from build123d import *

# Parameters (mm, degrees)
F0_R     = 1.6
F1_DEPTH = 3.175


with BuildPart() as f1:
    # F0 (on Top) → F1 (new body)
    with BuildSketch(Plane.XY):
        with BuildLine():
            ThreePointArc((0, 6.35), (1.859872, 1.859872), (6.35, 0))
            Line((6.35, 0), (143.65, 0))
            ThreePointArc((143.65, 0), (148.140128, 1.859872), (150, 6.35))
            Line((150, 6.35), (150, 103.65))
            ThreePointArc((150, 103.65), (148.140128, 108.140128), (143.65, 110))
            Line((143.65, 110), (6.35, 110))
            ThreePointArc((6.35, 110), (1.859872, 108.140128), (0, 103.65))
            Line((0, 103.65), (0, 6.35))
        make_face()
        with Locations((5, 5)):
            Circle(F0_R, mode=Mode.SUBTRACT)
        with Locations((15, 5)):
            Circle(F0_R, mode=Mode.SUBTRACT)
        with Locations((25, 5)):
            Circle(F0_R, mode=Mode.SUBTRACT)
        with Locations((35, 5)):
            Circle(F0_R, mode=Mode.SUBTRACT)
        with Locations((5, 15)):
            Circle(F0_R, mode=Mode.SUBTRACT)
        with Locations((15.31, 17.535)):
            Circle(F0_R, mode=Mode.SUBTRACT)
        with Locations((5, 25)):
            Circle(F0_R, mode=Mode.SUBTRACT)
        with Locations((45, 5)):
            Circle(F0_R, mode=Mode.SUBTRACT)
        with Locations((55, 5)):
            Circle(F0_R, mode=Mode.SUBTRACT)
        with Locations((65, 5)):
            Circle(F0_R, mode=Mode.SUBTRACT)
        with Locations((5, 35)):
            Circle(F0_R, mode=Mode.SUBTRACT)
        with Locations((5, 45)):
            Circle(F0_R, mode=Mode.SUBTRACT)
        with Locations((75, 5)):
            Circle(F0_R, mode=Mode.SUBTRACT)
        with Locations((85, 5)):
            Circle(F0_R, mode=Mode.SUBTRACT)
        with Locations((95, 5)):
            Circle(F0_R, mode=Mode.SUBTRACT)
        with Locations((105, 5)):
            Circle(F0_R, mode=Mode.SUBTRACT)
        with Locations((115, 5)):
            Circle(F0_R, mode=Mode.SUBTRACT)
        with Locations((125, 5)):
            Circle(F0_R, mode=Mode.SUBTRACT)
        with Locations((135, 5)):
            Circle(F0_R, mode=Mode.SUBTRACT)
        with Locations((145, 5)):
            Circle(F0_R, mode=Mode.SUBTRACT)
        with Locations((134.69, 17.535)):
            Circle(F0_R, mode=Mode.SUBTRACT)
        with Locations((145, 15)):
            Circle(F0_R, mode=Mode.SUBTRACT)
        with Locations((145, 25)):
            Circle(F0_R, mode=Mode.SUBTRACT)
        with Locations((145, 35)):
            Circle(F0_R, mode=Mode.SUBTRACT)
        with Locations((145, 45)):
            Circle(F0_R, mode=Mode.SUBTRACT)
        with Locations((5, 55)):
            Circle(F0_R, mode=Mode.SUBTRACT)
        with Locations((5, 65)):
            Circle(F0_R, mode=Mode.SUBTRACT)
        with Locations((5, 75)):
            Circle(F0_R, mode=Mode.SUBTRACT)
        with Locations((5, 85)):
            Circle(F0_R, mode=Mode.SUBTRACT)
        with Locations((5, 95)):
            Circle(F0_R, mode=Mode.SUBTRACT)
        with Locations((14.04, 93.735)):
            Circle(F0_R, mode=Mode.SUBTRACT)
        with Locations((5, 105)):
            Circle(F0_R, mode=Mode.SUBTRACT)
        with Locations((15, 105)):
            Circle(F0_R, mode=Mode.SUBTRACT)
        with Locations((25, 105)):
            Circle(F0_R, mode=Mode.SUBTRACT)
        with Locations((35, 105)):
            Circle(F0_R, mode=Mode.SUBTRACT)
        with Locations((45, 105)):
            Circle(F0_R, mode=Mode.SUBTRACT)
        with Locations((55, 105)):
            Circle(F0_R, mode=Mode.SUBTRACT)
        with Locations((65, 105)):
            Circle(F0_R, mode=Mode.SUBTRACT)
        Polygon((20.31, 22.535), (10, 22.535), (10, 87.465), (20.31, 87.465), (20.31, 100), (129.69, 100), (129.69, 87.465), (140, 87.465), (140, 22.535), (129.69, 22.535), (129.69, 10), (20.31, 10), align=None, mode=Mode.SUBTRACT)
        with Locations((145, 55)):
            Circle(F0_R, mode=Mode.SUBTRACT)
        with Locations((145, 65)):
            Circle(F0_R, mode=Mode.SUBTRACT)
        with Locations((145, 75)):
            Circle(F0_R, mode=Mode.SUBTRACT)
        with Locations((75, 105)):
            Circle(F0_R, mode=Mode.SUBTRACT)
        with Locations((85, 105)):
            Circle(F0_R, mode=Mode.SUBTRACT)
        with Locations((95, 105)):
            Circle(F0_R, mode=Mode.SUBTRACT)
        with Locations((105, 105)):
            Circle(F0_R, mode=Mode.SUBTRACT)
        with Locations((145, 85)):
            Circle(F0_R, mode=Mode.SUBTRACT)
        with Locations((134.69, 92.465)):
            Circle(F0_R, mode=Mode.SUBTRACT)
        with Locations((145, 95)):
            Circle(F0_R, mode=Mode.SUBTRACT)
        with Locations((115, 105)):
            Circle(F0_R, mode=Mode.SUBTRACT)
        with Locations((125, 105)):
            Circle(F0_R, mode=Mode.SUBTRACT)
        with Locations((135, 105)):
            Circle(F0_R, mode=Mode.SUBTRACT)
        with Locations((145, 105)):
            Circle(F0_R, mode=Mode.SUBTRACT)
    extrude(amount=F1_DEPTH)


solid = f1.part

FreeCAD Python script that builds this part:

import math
import FreeCAD as App
import Part
import Sketcher
Q = App.Units.Quantity

doc = App.newDocument("Part")
body = doc.addObject("PartDesign::Body", "Body")

sketch1 = body.newObject("Sketcher::SketchObject", "Sketch")
sketch1.AttachmentSupport = (doc.getObject("XY_Plane"), [""])
sketch1.MapMode = "FlatFace"
sketch1.addGeometry([
    Part.ArcOfCircle(Part.Circle(App.Vector(6.35, 6.35, 0), App.Vector(0, 0, 1), 6.35), math.radians(-179.999998), math.radians(-90.000002)),
    Part.LineSegment(App.Vector(6.35, 0, 0), App.Vector(143.65, 0, 0)),
    Part.ArcOfCircle(Part.Circle(App.Vector(143.65, 6.35, 0), App.Vector(0, 0, 1), 6.35), math.radians(-89.999998), math.radians(-0.000002)),
    Part.LineSegment(App.Vector(150, 6.35, 0), App.Vector(150, 103.65, 0)),
    Part.ArcOfCircle(Part.Circle(App.Vector(143.65, 103.65, 0), App.Vector(0, 0, 1), 6.35), math.radians(0.000002), math.radians(89.999998)),
    Part.LineSegment(App.Vector(143.65, 110, 0), App.Vector(6.35, 110, 0)),
    Part.ArcOfCircle(Part.Circle(App.Vector(6.35, 103.65, 0), App.Vector(0, 0, 1), 6.35), math.radians(90.000002), math.radians(179.999998)),
    Part.LineSegment(App.Vector(0, 103.65, 0), App.Vector(0, 6.35, 0)),
    Part.Circle(App.Vector(5, 5, 0), App.Vector(0, 0, 1), 1.6),
    Part.Circle(App.Vector(15, 5, 0), App.Vector(0, 0, 1), 1.6),
    Part.Circle(App.Vector(5, 15, 0), App.Vector(0, 0, 1), 1.6),
    Part.Circle(App.Vector(25, 5, 0), App.Vector(0, 0, 1), 1.6),
    Part.Circle(App.Vector(35, 5, 0), App.Vector(0, 0, 1), 1.6),
    Part.Circle(App.Vector(15.31, 17.535, 0), App.Vector(0, 0, 1), 1.6),
    Part.Circle(App.Vector(5, 25, 0), App.Vector(0, 0, 1), 1.6),
    Part.Circle(App.Vector(45, 5, 0), App.Vector(0, 0, 1), 1.6),
    Part.Circle(App.Vector(55, 5, 0), App.Vector(0, 0, 1), 1.6),
    Part.Circle(App.Vector(65, 5, 0), App.Vector(0, 0, 1), 1.6),
    Part.Circle(App.Vector(5, 35, 0), App.Vector(0, 0, 1), 1.6),
    Part.Circle(App.Vector(5, 45, 0), App.Vector(0, 0, 1), 1.6),
    Part.Circle(App.Vector(75, 5, 0), App.Vector(0, 0, 1), 1.6),
    Part.Circle(App.Vector(85, 5, 0), App.Vector(0, 0, 1), 1.6),
    Part.Circle(App.Vector(95, 5, 0), App.Vector(0, 0, 1), 1.6),
    Part.Circle(App.Vector(105, 5, 0), App.Vector(0, 0, 1), 1.6),
    Part.Circle(App.Vector(115, 5, 0), App.Vector(0, 0, 1), 1.6),
    Part.Circle(App.Vector(125, 5, 0), App.Vector(0, 0, 1), 1.6),
    Part.Circle(App.Vector(135, 5, 0), App.Vector(0, 0, 1), 1.6),
    Part.Circle(App.Vector(145, 5, 0), App.Vector(0, 0, 1), 1.6),
    Part.Circle(App.Vector(145, 15, 0), App.Vector(0, 0, 1), 1.6),
    Part.Circle(App.Vector(134.69, 17.535, 0), App.Vector(0, 0, 1), 1.6),
    Part.Circle(App.Vector(145, 25, 0), App.Vector(0, 0, 1), 1.6),
    Part.Circle(App.Vector(145, 35, 0), App.Vector(0, 0, 1), 1.6),
    Part.Circle(App.Vector(145, 45, 0), App.Vector(0, 0, 1), 1.6),
    Part.Circle(App.Vector(5, 55, 0), App.Vector(0, 0, 1), 1.6),
    Part.Circle(App.Vector(5, 65, 0), App.Vector(0, 0, 1), 1.6),
    Part.Circle(App.Vector(5, 75, 0), App.Vector(0, 0, 1), 1.6),
    Part.Circle(App.Vector(5, 85, 0), App.Vector(0, 0, 1), 1.6),
    Part.Circle(App.Vector(5, 95, 0), App.Vector(0, 0, 1), 1.6),
    Part.Circle(App.Vector(14.04, 93.735, 0), App.Vector(0, 0, 1), 1.6),
    Part.Circle(App.Vector(5, 105, 0), App.Vector(0, 0, 1), 1.6),
    Part.Circle(App.Vector(15, 105, 0), App.Vector(0, 0, 1), 1.6),
    Part.Circle(App.Vector(25, 105, 0), App.Vector(0, 0, 1), 1.6),
    Part.Circle(App.Vector(35, 105, 0), App.Vector(0, 0, 1), 1.6),
    Part.Circle(App.Vector(45, 105, 0), App.Vector(0, 0, 1), 1.6),
    Part.Circle(App.Vector(55, 105, 0), App.Vector(0, 0, 1), 1.6),
    Part.Circle(App.Vector(65, 105, 0), App.Vector(0, 0, 1), 1.6),
    Part.LineSegment(App.Vector(20.31, 10, 0), App.Vector(20.31, 22.535, 0)),
    Part.LineSegment(App.Vector(20.31, 22.535, 0), App.Vector(10, 22.535, 0)),
    Part.LineSegment(App.Vector(10, 22.535, 0), App.Vector(10, 87.465, 0)),
    Part.LineSegment(App.Vector(10, 87.465, 0), App.Vector(20.31, 87.465, 0)),
    Part.LineSegment(App.Vector(20.31, 87.465, 0), App.Vector(20.31, 100, 0)),
    Part.LineSegment(App.Vector(20.31, 100, 0), App.Vector(129.69, 100, 0)),
    Part.LineSegment(App.Vector(129.69, 100, 0), App.Vector(129.69, 87.465, 0)),
    Part.LineSegment(App.Vector(129.69, 87.465, 0), App.Vector(140, 87.465, 0)),
    Part.LineSegment(App.Vector(140, 87.465, 0), App.Vector(140, 22.535, 0)),
    Part.LineSegment(App.Vector(140, 22.535, 0), App.Vector(129.69, 22.535, 0)),
    Part.LineSegment(App.Vector(129.69, 22.535, 0), App.Vector(129.69, 10, 0)),
    Part.LineSegment(App.Vector(129.69, 10, 0), App.Vector(20.31, 10, 0)),
    Part.Circle(App.Vector(145, 55, 0), App.Vector(0, 0, 1), 1.6),
    Part.Circle(App.Vector(145, 65, 0), App.Vector(0, 0, 1), 1.6),
    Part.Circle(App.Vector(145, 75, 0), App.Vector(0, 0, 1), 1.6),
    Part.Circle(App.Vector(75, 105, 0), App.Vector(0, 0, 1), 1.6),
    Part.Circle(App.Vector(85, 105, 0), App.Vector(0, 0, 1), 1.6),
    Part.Circle(App.Vector(95, 105, 0), App.Vector(0, 0, 1), 1.6),
    Part.Circle(App.Vector(105, 105, 0), App.Vector(0, 0, 1), 1.6),
    Part.Circle(App.Vector(145, 85, 0), App.Vector(0, 0, 1), 1.6),
    Part.Circle(App.Vector(134.69, 92.465, 0), App.Vector(0, 0, 1), 1.6),
    Part.Circle(App.Vector(115, 105, 0), App.Vector(0, 0, 1), 1.6),
    Part.Circle(App.Vector(125, 105, 0), App.Vector(0, 0, 1), 1.6),
    Part.Circle(App.Vector(145, 95, 0), App.Vector(0, 0, 1), 1.6),
    Part.Circle(App.Vector(135, 105, 0), App.Vector(0, 0, 1), 1.6),
    Part.Circle(App.Vector(145, 105, 0), App.Vector(0, 0, 1), 1.6),
], False)
sketch1.addConstraint([
    Sketcher.Constraint("Tangent", 0, 2, 1, 1),
    Sketcher.Constraint("Tangent", 1, 2, 2, 1),
    Sketcher.Constraint("Tangent", 2, 2, 3, 1),
    Sketcher.Constraint("Tangent", 3, 2, 4, 1),
    Sketcher.Constraint("Tangent", 4, 2, 5, 1),
    Sketcher.Constraint("Tangent", 5, 2, 6, 1),
    Sketcher.Constraint("Tangent", 6, 2, 7, 1),
    Sketcher.Constraint("Tangent", 7, 2, 0, 1),
    Sketcher.Constraint("Coincident", 46, 2, 47, 1),
    Sketcher.Constraint("Coincident", 47, 2, 48, 1),
    Sketcher.Constraint("Coincident", 48, 2, 49, 1),
    Sketcher.Constraint("Coincident", 49, 2, 50, 1),
    Sketcher.Constraint("Coincident", 50, 2, 51, 1),
    Sketcher.Constraint("Coincident", 51, 2, 52, 1),
    Sketcher.Constraint("Coincident", 52, 2, 53, 1),
    Sketcher.Constraint("Coincident", 53, 2, 54, 1),
    Sketcher.Constraint("Coincident", 54, 2, 55, 1),
    Sketcher.Constraint("Coincident", 55, 2, 56, 1),
    Sketcher.Constraint("Coincident", 56, 2, 57, 1),
    Sketcher.Constraint("Coincident", 57, 2, 46, 1),
    Sketcher.Constraint("Horizontal", 1),
    Sketcher.Constraint("Vertical", 3),
    Sketcher.Constraint("Horizontal", 5),
    Sketcher.Constraint("Vertical", 7),
    Sketcher.Constraint("Vertical", 46),
    Sketcher.Constraint("Horizontal", 47),
    Sketcher.Constraint("Vertical", 48),
    Sketcher.Constraint("Horizontal", 49),
    Sketcher.Constraint("Vertical", 50),
    Sketcher.Constraint("Horizontal", 51),
    Sketcher.Constraint("Vertical", 52),
    Sketcher.Constraint("Horizontal", 53),
    Sketcher.Constraint("Vertical", 54),
    Sketcher.Constraint("Horizontal", 55),
    Sketcher.Constraint("Vertical", 56),
    Sketcher.Constraint("Horizontal", 57),
    Sketcher.Constraint("Equal", 0, 2),
    Sketcher.Constraint("Equal", 2, 4),
    Sketcher.Constraint("Equal", 4, 6),
    Sketcher.Constraint("Equal", 8, 9),
    Sketcher.Constraint("Equal", 9, 10),
    Sketcher.Constraint("Equal", 10, 11),
    Sketcher.Constraint("Equal", 11, 12),
    Sketcher.Constraint("Equal", 12, 13),
    Sketcher.Constraint("Equal", 13, 14),
    Sketcher.Constraint("Equal", 14, 15),
    Sketcher.Constraint("Equal", 15, 16),
    Sketcher.Constraint("Equal", 16, 17),
    Sketcher.Constraint("Equal", 17, 18),
    Sketcher.Constraint("Equal", 18, 19),
    Sketcher.Constraint("Equal", 19, 20),
    Sketcher.Constraint("Equal", 20, 21),
    Sketcher.Constraint("Equal", 21, 22),
    Sketcher.Constraint("Equal", 22, 23),
    Sketcher.Constraint("Equal", 23, 24),
    Sketcher.Constraint("Equal", 24, 25),
    Sketcher.Constraint("Equal", 25, 26),
    Sketcher.Constraint("Equal", 26, 27),
    Sketcher.Constraint("Equal", 27, 28),
    Sketcher.Constraint("Equal", 28, 29),
    Sketcher.Constraint("Equal", 29, 30),
    Sketcher.Constraint("Equal", 30, 31),
    Sketcher.Constraint("Equal", 31, 32),
    Sketcher.Constraint("Equal", 32, 33),
    Sketcher.Constraint("Equal", 33, 34),
    Sketcher.Constraint("Equal", 34, 35),
    Sketcher.Constraint("Equal", 35, 36),
    Sketcher.Constraint("Equal", 36, 37),
    Sketcher.Constraint("Equal", 37, 38),
    Sketcher.Constraint("Equal", 38, 39),
    Sketcher.Constraint("Equal", 39, 40),
    Sketcher.Constraint("Equal", 40, 41),
    Sketcher.Constraint("Equal", 41, 42),
    Sketcher.Constraint("Equal", 42, 43),
    Sketcher.Constraint("Equal", 43, 44),
    Sketcher.Constraint("Equal", 44, 45),
    Sketcher.Constraint("Equal", 45, 58),
    Sketcher.Constraint("Equal", 58, 59),
    Sketcher.Constraint("Equal", 59, 60),
    Sketcher.Constraint("Equal", 60, 61),
    Sketcher.Constraint("Equal", 61, 62),
    Sketcher.Constraint("Equal", 62, 63),
    Sketcher.Constraint("Equal", 63, 64),
    Sketcher.Constraint("Equal", 64, 65),
    Sketcher.Constraint("Equal", 65, 66),
    Sketcher.Constraint("Equal", 66, 67),
    Sketcher.Constraint("Equal", 67, 68),
    Sketcher.Constraint("Equal", 68, 69),
    Sketcher.Constraint("Equal", 69, 70),
    Sketcher.Constraint("Equal", 70, 71),
    Sketcher.Constraint("PointOnObject", 0, 2, -1),
    Sketcher.Constraint("PointOnObject", 6, 2, -2),
    Sketcher.Constraint("Horizontal", 8, 3, 9, 3),
    Sketcher.Constraint("Horizontal", 9, 3, 11, 3),
    Sketcher.Constraint("Horizontal", 11, 3, 12, 3),
    Sketcher.Constraint("Horizontal", 12, 3, 15, 3),
    Sketcher.Constraint("Horizontal", 15, 3, 16, 3),
    Sketcher.Constraint("Horizontal", 16, 3, 17, 3),
    Sketcher.Constraint("Horizontal", 17, 3, 20, 3),
    Sketcher.Constraint("Horizontal", 20, 3, 21, 3),
    Sketcher.Constraint("Horizontal", 21, 3, 22, 3),
    Sketcher.Constraint("Horizontal", 22, 3, 23, 3),
    Sketcher.Constraint("Horizontal", 23, 3, 24, 3),
    Sketcher.Constraint("Horizontal", 24, 3, 25, 3),
    Sketcher.Constraint("Horizontal", 25, 3, 26, 3),
    Sketcher.Constraint("Horizontal", 26, 3, 27, 3),
    Sketcher.Constraint("Horizontal", 10, 3, 28, 3),
    Sketcher.Constraint("Horizontal", 13, 3, 29, 3),
    Sketcher.Constraint("Horizontal", 14, 3, 30, 3),
    Sketcher.Constraint("Horizontal", 18, 3, 31, 3),
    Sketcher.Constraint("Horizontal", 19, 3, 32, 3),
    Sketcher.Constraint("Horizontal", 39, 3, 40, 3),
    Sketcher.Constraint("Horizontal", 40, 3, 41, 3),
    Sketcher.Constraint("Horizontal", 41, 3, 42, 3),
    Sketcher.Constraint("Horizontal", 42, 3, 43, 3),
    Sketcher.Constraint("Horizontal", 43, 3, 44, 3),
    Sketcher.Constraint("Horizontal", 44, 3, 45, 3),
    Sketcher.Constraint("Horizontal", 33, 3, 58, 3),
    Sketcher.Constraint("Horizontal", 34, 3, 59, 3),
    Sketcher.Constraint("Horizontal", 35, 3, 60, 3),
    Sketcher.Constraint("Horizontal", 45, 3, 61, 3),
    Sketcher.Constraint("Horizontal", 61, 3, 62, 3),
    Sketcher.Constraint("Horizontal", 62, 3, 63, 3),
    Sketcher.Constraint("Horizontal", 63, 3, 64, 3),
    Sketcher.Constraint("Horizontal", 36, 3, 65, 3),
    Sketcher.Constraint("Horizontal", 64, 3, 67, 3),
    Sketcher.Constraint("Horizontal", 67, 3, 68, 3),
    Sketcher.Constraint("Horizontal", 37, 3, 69, 3),
    Sketcher.Constraint("Horizontal", 68, 3, 70, 3),
    Sketcher.Constraint("Horizontal", 70, 3, 71, 3),
    Sketcher.Constraint("Horizontal", 49, 2, 52, 2),
    Sketcher.Constraint("Horizontal", 47, 2, 54, 2),
    Sketcher.Constraint("Vertical", 8, 3, 10, 3),
    Sketcher.Constraint("Vertical", 10, 3, 14, 3),
    Sketcher.Constraint("Vertical", 14, 3, 18, 3),
    Sketcher.Constraint("Vertical", 18, 3, 19, 3),
    Sketcher.Constraint("Vertical", 27, 3, 28, 3),
    Sketcher.Constraint("Vertical", 28, 3, 30, 3),
    Sketcher.Constraint("Vertical", 30, 3, 31, 3),
    Sketcher.Constraint("Vertical", 31, 3, 32, 3),
    Sketcher.Constraint("Vertical", 19, 3, 33, 3),
    Sketcher.Constraint("Vertical", 33, 3, 34, 3),
    Sketcher.Constraint("Vertical", 34, 3, 35, 3),
    Sketcher.Constraint("Vertical", 35, 3, 36, 3),
    Sketcher.Constraint("Vertical", 36, 3, 37, 3),
    Sketcher.Constraint("Vertical", 37, 3, 39, 3),
    Sketcher.Constraint("Vertical", 9, 3, 40, 3),
    Sketcher.Constraint("Vertical", 11, 3, 41, 3),
    Sketcher.Constraint("Vertical", 12, 3, 42, 3),
    Sketcher.Constraint("Vertical", 15, 3, 43, 3),
    Sketcher.Constraint("Vertical", 16, 3, 44, 3),
    Sketcher.Constraint("Vertical", 17, 3, 45, 3),
    Sketcher.Constraint("Vertical", 32, 3, 58, 3),
    Sketcher.Constraint("Vertical", 58, 3, 59, 3),
    Sketcher.Constraint("Vertical", 59, 3, 60, 3),
    Sketcher.Constraint("Vertical", 20, 3, 61, 3),
    Sketcher.Constraint("Vertical", 21, 3, 62, 3),
    Sketcher.Constraint("Vertical", 22, 3, 63, 3),
    Sketcher.Constraint("Vertical", 23, 3, 64, 3),
    Sketcher.Constraint("Vertical", 60, 3, 65, 3),
    Sketcher.Constraint("Vertical", 29, 3, 66, 3),
    Sketcher.Constraint("Vertical", 24, 3, 67, 3),
    Sketcher.Constraint("Vertical", 25, 3, 68, 3),
    Sketcher.Constraint("Vertical", 65, 3, 69, 3),
    Sketcher.Constraint("Vertical", 26, 3, 70, 3),
    Sketcher.Constraint("Vertical", 69, 3, 71, 3),
    Sketcher.Constraint("Vertical", 46, 2, 49, 2),
    Sketcher.Constraint("Vertical", 52, 2, 55, 2),
    Sketcher.Constraint("Equal", 49, 53),
    Sketcher.Constraint("Equal", 46, 50),
    Sketcher.Constraint("Diameter", 8, Q("3.2 mm")),
    Sketcher.Constraint("Radius", 0, Q("6.35 mm")),
    Sketcher.Constraint("DistanceX", 1, 1, 1, 2, Q("137.3 mm")),
    Sketcher.Constraint("DistanceY", 3, 1, 3, 2, Q("97.3 mm")),
    Sketcher.Constraint("DistanceX", -1, 1, 8, 3, Q("5 mm")),
    Sketcher.Constraint("DistanceY", -1, 1, 8, 3, Q("5 mm")),
    Sketcher.Constraint("DistanceX", -1, 1, 9, 3, Q("15 mm")),
    Sketcher.Constraint("DistanceY", -1, 1, 10, 3, Q("15 mm")),
    Sketcher.Constraint("DistanceX", -1, 1, 11, 3, Q("25 mm")),
    Sketcher.Constraint("DistanceX", -1, 1, 12, 3, Q("35 mm")),
    Sketcher.Constraint("DistanceY", -1, 1, 14, 3, Q("25 mm")),
    Sketcher.Constraint("DistanceX", -1, 1, 15, 3, Q("45 mm")),
    Sketcher.Constraint("DistanceX", -1, 1, 16, 3, Q("55 mm")),
    Sketcher.Constraint("DistanceX", -1, 1, 17, 3, Q("65 mm")),
    Sketcher.Constraint("DistanceY", -1, 1, 18, 3, Q("35 mm")),
    Sketcher.Constraint("DistanceY", -1, 1, 19, 3, Q("45 mm")),
    Sketcher.Constraint("DistanceX", -1, 1, 20, 3, Q("75 mm")),
    Sketcher.Constraint("DistanceX", -1, 1, 21, 3, Q("85 mm")),
    Sketcher.Constraint("DistanceX", -1, 1, 22, 3, Q("95 mm")),
    Sketcher.Constraint("DistanceX", -1, 1, 23, 3, Q("105 mm")),
    Sketcher.Constraint("DistanceX", -1, 1, 24, 3, Q("115 mm")),
    Sketcher.Constraint("DistanceX", -1, 1, 25, 3, Q("125 mm")),
    Sketcher.Constraint("DistanceX", -1, 1, 26, 3, Q("135 mm")),
    Sketcher.Constraint("DistanceX", -1, 1, 27, 3, Q("145 mm")),
    Sketcher.Constraint("DistanceY", -1, 1, 33, 3, Q("55 mm")),
    Sketcher.Constraint("DistanceY", -1, 1, 34, 3, Q("65 mm")),
    Sketcher.Constraint("DistanceY", -1, 1, 35, 3, Q("75 mm")),
    Sketcher.Constraint("DistanceY", -1, 1, 36, 3, Q("85 mm")),
    Sketcher.Constraint("DistanceY", -1, 1, 37, 3, Q("95 mm")),
    Sketcher.Constraint("DistanceY", -1, 1, 39, 3, Q("105 mm")),
    Sketcher.Constraint("DistanceX", -1, 1, 47, 2, Q("10 mm")),
    Sketcher.Constraint("DistanceY", -1, 1, 50, 2, Q("100 mm")),
    Sketcher.Constraint("DistanceX", -1, 1, 53, 2, Q("140 mm")),
    Sketcher.Constraint("DistanceY", -1, 1, 56, 2, Q("10 mm")),
    Sketcher.Constraint("DistanceX", 47, 2, 47, 1, Q("10.31 mm")),
    Sketcher.Constraint("DistanceY", 48, 1, 48, 2, Q("64.93 mm")),
    Sketcher.Constraint("DistanceX", -1, 1, 13, 3, Q("15.31 mm")),
    Sketcher.Constraint("DistanceX", -1, 1, 29, 3, Q("134.69 mm")),
    Sketcher.Constraint("DistanceX", -1, 1, 38, 3, Q("14.04 mm")),
    Sketcher.Constraint("DistanceY", -1, 1, 13, 3, Q("17.535 mm")),
    Sketcher.Constraint("DistanceY", -1, 1, 38, 3, Q("93.735 mm")),
    Sketcher.Constraint("DistanceY", -1, 1, 66, 3, Q("92.465 mm")),
])
pad1 = body.newObject("PartDesign::Pad", "Pad")
pad1.Profile = sketch1
pad1.Length = 3.175

doc.recompute()
